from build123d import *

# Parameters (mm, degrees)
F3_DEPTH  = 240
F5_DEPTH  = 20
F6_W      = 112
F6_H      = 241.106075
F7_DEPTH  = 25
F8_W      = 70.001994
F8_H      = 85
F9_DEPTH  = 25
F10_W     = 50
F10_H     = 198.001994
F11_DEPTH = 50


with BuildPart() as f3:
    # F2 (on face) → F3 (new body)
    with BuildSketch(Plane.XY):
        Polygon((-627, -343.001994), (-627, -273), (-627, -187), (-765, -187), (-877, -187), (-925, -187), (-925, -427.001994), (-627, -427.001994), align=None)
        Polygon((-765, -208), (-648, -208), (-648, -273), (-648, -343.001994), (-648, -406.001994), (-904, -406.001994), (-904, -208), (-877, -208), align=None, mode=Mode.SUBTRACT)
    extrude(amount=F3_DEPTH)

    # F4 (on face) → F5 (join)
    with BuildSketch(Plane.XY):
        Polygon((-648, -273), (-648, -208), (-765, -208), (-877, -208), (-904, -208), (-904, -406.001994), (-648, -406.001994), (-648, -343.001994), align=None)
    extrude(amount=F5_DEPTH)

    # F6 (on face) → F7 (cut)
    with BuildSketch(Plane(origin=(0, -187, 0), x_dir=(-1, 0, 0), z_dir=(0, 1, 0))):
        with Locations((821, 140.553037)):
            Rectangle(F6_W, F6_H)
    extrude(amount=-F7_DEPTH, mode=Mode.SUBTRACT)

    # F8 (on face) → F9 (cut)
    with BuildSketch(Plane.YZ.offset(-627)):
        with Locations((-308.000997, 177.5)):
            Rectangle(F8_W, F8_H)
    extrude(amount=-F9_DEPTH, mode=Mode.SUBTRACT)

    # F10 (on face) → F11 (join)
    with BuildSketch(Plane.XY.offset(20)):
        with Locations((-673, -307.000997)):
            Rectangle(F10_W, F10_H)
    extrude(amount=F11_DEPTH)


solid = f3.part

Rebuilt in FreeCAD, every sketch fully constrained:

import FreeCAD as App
import Part
import Sketcher


def add_polygon(sketch, points):
    """Adds a closed chain of lines whose ends are joined by coincident constraints."""
    first, n = sketch.GeometryCount, len(points)
    for a, b in zip(points, points[1:] + points[:1]):
        sketch.addGeometry(Part.LineSegment(App.Vector(*a, 0), App.Vector(*b, 0)), False)
    for i in range(n):
        sketch.addConstraint(Sketcher.Constraint("Coincident", first + i, 2, first + (i + 1) % n, 1))

doc = App.newDocument("Part")
body = doc.addObject("PartDesign::Body", "Body")

# Sketch on XY plane
sketch1 = doc.addObject("Sketcher::SketchObject", "Sketch")
body.addObject(sketch1)
sketch1.AttachmentSupport = (doc.XY_Plane, [""])
sketch1.MapMode = "FlatFace"
add_polygon(sketch1, [(-627, -187), (-925, -187), (-925, -427), (-627, -427)])  # lines 0-3
add_polygon(sketch1, [(-904, -208), (-648, -208), (-648, -406), (-904, -406)])  # lines 4-7
sketch1.addConstraint([
    Sketcher.Constraint("Horizontal", 0),
    Sketcher.Constraint("Vertical", 1),
    Sketcher.Constraint("Horizontal", 2),
    Sketcher.Constraint("Vertical", 3),
    Sketcher.Constraint("Horizontal", 4),
    Sketcher.Constraint("Vertical", 5),
    Sketcher.Constraint("Horizontal", 6),
    Sketcher.Constraint("Vertical", 7),
    Sketcher.Constraint("DistanceX", 0, 2, 0, 1, 298.0),
    Sketcher.Constraint("DistanceX", 4, 1, 4, 2, 256.0),
    Sketcher.Constraint("DistanceX", 0, 2, -1, 1, 925.0),
    Sketcher.Constraint("DistanceY", 0, 2, -1, 1, 187.0),
    Sketcher.Constraint("DistanceX", 4, 2, -1, 1, 648.0),
    Sketcher.Constraint("DistanceY", 4, 2, -1, 1, 208.0),
    Sketcher.Constraint("DistanceY", 2, 2, 5, 2, 21.0),
    Sketcher.Constraint("DistanceY", 1, 2, 1, 1, 240.001994),
])
pad1 = doc.addObject("PartDesign::Pad", "Pad")
body.addObject(pad1)
pad1.Profile = sketch1
pad1.Length = 240

# Sketch on XY plane
sketch2 = doc.addObject("Sketcher::SketchObject", "Sketch001")
body.addObject(sketch2)
sketch2.AttachmentSupport = (doc.XY_Plane, [""])
sketch2.MapMode = "FlatFace"
add_polygon(sketch2, [(-648, -208), (-904, -208), (-904, -406), (-648, -406)])  # lines 0-3
sketch2.addConstraint([
    Sketcher.Constraint("Horizontal", 0),
    Sketcher.Constraint("Vertical", 1),
    Sketcher.Constraint("Horizontal", 2),
    Sketcher.Constraint("Vertical", 3),
    Sketcher.Constraint("DistanceX", 0, 2, 0, 1, 256.0),
    Sketcher.Constraint("DistanceX", 0, 2, -1, 1, 904.0),
    Sketcher.Constraint("DistanceY", 0, 2, -1, 1, 208.0),
    Sketcher.Constraint("DistanceY", 1, 2, 1, 1, 198.001994),
])
pad2 = doc.addObject("PartDesign::Pad", "Pad001")
body.addObject(pad2)
pad2.Profile = sketch2
pad2.Length = 20

# Sketch on XZ plane
sketch3 = doc.addObject("Sketcher::SketchObject", "Sketch002")
body.addObject(sketch3)
sketch3.AttachmentSupport = (doc.XZ_Plane, [""])
sketch3.MapMode = "FlatFace"
sketch3.AttachmentOffset = App.Placement(App.Vector(0, 0, 187), App.Rotation())
add_polygon(sketch3, [(-765, 261), (-765, 20), (-877, 20), (-877, 261)])  # lines 0-3
sketch3.addConstraint([
    Sketcher.Constraint("Vertical", 0),
    Sketcher.Constraint("Horizontal", 1),
    Sketcher.Constraint("Vertical", 2),
    Sketcher.Constraint("Horizontal", 3),
    Sketcher.Constraint("DistanceX", 1, 2, 1, 1, 112.0),
    Sketcher.Constraint("DistanceX", 0, 2, -1, 1, 765.0),
    Sketcher.Constraint("DistanceY", -1, 1, 0, 2, 20.0),
    Sketcher.Constraint("DistanceY", 0, 2, 0, 1, 241.106075),
])
pocket1 = doc.addObject("PartDesign::Pocket", "Pocket")
body.addObject(pocket1)
pocket1.Profile = sketch3
pocket1.Length = 25
pocket1.Reversed = True

# Sketch on YZ plane
sketch4 = doc.addObject("Sketcher::SketchObject", "Sketch003")
body.addObject(sketch4)
sketch4.AttachmentSupport = (doc.YZ_Plane, [""])
sketch4.MapMode = "FlatFace"
sketch4.AttachmentOffset = App.Placement(App.Vector(0, 0, -627), App.Rotation())
add_polygon(sketch4, [(-343, 220), (-343, 135), (-273, 135), (-273, 220)])  # lines 0-3
sketch4.addConstraint([
    Sketcher.Constraint("Vertical", 0),
    Sketcher.Constraint("Horizontal", 1),
    Sketcher.Constraint("Vertical", 2),
    Sketcher.Constraint("Horizontal", 3),
    Sketcher.Constraint("DistanceY", 0, 2, 0, 1, 85.0),
    Sketcher.Constraint("DistanceY", -1, 1, 0, 2, 135.0),
    Sketcher.Constraint("DistanceX", 1, 2, -1, 1, 273.0),
    Sketcher.Constraint("DistanceX", 1, 1, 1, 2, 70.001994),
])
pocket2 = doc.addObject("PartDesign::Pocket", "Pocket001")
body.addObject(pocket2)
pocket2.Profile = sketch4
pocket2.Length = 25

# Sketch on XY plane
sketch5 = doc.addObject("Sketcher::SketchObject", "Sketch004")
body.addObject(sketch5)
sketch5.AttachmentSupport = (doc.XY_Plane, [""])
sketch5.MapMode = "FlatFace"
sketch5.AttachmentOffset = App.Placement(App.Vector(0, 0, 20), App.Rotation())
add_polygon(sketch5, [(-698, -208), (-698, -406), (-648, -406), (-648, -208)])  # lines 0-3
sketch5.addConstraint([
    Sketcher.Constraint("Vertical", 0),
    Sketcher.Constraint("Horizontal", 1),
    Sketcher.Constraint("Vertical", 2),
    Sketcher.Constraint("Horizontal", 3),
    Sketcher.Constraint("DistanceX", 1, 1, 1, 2, 50.0),
    Sketcher.Constraint("DistanceX", 0, 2, -1, 1, 698.0),
    Sketcher.Constraint("DistanceY", 2, 2, -1, 1, 208.0),
    Sketcher.Constraint("DistanceY", 0, 2, 0, 1, 198.001994),
])
pad3 = doc.addObject("PartDesign::Pad", "Pad002")
body.addObject(pad3)
pad3.Profile = sketch5
pad3.Length = 50

doc.recompute()
